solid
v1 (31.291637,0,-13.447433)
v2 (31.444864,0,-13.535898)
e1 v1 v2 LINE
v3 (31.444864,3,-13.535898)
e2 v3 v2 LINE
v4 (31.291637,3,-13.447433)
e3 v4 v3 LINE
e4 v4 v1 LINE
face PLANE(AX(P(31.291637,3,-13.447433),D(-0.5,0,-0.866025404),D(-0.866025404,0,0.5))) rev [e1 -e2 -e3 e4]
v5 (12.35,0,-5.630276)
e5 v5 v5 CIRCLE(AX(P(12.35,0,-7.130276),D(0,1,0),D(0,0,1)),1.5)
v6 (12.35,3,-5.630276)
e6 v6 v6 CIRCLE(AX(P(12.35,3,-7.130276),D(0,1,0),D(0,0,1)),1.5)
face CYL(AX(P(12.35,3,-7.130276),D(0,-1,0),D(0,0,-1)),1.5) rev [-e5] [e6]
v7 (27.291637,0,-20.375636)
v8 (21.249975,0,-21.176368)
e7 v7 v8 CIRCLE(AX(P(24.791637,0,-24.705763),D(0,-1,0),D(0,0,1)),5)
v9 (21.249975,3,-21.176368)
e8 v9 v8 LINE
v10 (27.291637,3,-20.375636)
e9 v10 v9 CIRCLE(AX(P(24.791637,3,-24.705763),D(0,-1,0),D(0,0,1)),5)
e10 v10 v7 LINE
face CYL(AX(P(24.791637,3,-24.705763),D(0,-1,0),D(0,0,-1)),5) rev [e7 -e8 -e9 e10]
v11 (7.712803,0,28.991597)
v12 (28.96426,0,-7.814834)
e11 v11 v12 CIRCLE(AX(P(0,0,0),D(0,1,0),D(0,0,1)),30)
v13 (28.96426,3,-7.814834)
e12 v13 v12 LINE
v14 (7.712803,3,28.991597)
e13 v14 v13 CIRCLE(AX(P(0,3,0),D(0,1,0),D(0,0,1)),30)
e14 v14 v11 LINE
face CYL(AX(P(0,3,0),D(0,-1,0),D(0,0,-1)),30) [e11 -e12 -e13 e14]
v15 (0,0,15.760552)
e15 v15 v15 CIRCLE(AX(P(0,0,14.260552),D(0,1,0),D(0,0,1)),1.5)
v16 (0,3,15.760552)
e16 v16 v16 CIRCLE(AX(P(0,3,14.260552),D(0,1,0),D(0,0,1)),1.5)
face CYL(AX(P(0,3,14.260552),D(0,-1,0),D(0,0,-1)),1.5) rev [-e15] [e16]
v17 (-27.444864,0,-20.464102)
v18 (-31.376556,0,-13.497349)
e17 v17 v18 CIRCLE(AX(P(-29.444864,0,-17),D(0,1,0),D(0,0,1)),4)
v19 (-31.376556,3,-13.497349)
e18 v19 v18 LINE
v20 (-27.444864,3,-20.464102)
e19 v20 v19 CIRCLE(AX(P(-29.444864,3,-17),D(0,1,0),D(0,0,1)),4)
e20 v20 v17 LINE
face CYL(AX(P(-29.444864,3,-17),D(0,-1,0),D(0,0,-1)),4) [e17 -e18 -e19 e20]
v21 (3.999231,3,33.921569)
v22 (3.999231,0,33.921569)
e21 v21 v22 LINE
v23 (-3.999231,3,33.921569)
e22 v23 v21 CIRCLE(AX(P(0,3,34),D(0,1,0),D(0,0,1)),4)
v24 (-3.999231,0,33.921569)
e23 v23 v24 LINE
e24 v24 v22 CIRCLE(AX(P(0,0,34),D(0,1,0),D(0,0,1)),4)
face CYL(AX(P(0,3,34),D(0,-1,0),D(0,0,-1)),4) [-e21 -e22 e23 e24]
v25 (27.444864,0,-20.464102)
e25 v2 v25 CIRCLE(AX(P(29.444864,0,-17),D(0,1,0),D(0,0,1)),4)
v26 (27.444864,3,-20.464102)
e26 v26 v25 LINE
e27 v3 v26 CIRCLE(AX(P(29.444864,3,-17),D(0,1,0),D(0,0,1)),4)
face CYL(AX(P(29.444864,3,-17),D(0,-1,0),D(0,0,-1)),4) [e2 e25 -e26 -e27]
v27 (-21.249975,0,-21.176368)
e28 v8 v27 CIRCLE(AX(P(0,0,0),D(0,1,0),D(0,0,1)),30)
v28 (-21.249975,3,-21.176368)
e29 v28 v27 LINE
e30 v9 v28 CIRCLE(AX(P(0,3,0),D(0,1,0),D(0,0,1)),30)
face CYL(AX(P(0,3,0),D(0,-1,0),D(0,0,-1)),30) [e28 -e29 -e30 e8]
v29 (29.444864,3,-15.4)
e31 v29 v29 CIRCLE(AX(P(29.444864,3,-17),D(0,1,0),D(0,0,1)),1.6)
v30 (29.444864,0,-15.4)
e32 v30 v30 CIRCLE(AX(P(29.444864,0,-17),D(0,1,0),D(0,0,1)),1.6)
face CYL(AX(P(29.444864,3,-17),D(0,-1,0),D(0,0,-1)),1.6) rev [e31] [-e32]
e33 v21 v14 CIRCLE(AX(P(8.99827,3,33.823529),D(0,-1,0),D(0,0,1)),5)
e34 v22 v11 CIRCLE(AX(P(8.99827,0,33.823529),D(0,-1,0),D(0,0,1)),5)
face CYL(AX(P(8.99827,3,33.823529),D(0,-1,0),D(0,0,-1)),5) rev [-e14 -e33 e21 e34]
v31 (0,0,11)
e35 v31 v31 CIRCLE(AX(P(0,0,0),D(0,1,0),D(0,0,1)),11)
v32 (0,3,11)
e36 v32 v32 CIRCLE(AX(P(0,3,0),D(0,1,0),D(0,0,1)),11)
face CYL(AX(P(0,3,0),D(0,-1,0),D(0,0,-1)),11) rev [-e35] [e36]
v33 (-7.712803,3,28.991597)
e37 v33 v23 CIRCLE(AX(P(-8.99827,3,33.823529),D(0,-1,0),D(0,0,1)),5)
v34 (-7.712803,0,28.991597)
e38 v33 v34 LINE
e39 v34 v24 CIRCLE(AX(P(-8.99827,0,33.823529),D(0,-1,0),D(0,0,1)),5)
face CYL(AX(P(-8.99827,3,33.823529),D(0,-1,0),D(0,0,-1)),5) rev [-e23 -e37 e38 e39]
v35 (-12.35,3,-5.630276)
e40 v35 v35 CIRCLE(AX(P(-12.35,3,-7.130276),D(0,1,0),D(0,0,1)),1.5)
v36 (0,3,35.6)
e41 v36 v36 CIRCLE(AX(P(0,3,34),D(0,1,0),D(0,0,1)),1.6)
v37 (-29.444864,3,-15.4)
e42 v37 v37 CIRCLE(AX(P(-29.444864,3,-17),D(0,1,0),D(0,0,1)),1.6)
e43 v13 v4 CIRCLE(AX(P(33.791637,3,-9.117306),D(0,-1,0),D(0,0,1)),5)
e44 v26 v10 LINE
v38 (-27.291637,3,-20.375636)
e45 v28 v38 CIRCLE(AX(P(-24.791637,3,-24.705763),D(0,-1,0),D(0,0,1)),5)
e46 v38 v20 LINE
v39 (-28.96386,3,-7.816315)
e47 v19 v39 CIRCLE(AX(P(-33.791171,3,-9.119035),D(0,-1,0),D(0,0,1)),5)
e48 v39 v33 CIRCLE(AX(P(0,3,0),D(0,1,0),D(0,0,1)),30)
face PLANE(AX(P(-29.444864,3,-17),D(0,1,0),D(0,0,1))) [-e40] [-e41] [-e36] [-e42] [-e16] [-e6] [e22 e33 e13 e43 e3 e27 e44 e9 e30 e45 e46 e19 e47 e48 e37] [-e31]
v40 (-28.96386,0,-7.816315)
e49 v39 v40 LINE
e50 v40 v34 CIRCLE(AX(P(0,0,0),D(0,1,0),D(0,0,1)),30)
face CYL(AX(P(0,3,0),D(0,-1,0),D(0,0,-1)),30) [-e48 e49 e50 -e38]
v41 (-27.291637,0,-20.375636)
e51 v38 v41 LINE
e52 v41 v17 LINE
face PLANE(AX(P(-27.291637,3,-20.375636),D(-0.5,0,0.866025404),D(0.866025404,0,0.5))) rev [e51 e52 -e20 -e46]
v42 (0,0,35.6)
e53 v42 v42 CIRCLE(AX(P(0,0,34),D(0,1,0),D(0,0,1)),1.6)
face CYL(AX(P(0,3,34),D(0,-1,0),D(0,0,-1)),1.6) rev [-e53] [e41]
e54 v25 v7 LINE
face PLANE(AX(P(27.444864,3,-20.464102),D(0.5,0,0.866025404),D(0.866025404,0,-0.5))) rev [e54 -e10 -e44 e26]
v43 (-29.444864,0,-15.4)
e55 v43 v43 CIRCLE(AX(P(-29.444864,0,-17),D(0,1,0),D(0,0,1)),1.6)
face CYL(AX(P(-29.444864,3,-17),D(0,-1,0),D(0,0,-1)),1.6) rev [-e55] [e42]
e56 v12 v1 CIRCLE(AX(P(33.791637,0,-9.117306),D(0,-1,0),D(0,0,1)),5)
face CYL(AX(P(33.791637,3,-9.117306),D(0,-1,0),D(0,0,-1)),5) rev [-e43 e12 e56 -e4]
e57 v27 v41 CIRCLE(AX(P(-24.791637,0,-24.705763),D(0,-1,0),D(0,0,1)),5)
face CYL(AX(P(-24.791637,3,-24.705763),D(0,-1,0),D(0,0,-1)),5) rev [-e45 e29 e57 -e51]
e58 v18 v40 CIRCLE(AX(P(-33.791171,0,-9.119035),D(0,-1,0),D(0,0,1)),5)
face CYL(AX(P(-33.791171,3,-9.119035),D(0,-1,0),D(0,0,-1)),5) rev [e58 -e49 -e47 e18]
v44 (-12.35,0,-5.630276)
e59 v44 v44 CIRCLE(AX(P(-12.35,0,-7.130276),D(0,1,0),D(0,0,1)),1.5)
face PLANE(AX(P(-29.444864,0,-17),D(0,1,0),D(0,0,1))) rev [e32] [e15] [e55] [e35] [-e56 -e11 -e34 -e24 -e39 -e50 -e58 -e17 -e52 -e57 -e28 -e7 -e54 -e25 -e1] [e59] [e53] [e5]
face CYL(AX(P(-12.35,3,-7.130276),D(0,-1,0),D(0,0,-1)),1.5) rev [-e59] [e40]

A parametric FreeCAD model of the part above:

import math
import FreeCAD as App
import Part
import Sketcher

V = App.Vector
Q = App.Units.Quantity

doc = App.newDocument("Part")
body = doc.addObject("PartDesign::Body", "Body")

# Sketch on XZ plane
sketch1 = body.newObject("Sketcher::SketchObject", "Sketch")
sketch1.AttachmentSupport = (doc.getObject("XZ_Plane"), [""])
sketch1.MapMode = "FlatFace"
sketch1.addGeometry(Part.LineSegment(V(31.291637, -13.447433, 0), V(31.444864, -13.535898, 0)), False)
sketch1.addGeometry(Part.ArcOfCircle(Part.Circle(V(29.444864, -17, 0), V(0, 0, 1), 4), math.radians(-120), math.radians(60)), False)
sketch1.addGeometry(Part.LineSegment(V(27.444864, -20.464102, 0), V(27.291637, -20.375636, 0)), False)
sketch1.addGeometry(Part.ArcOfCircle(Part.Circle(V(24.791637, -24.705763, 0), V(0, 0, 1), 5), math.radians(60), math.radians(135.099403)), False)
sketch1.addGeometry(Part.ArcOfCircle(Part.Circle(V(0, 0, 0), V(0, 0, 1), 30), math.radians(-135.099403), math.radians(-44.900597)), False)
sketch1.addGeometry(Part.ArcOfCircle(Part.Circle(V(-24.791637, -24.705763, 0), V(0, 0, 1), 5), math.radians(44.900597), math.radians(120)), False)
sketch1.addGeometry(Part.LineSegment(V(-27.291637, -20.375636, 0), V(-27.444864, -20.464102, 0)), False)
sketch1.addGeometry(Part.ArcOfCircle(Part.Circle(V(-29.444864, -17, 0), V(0, 0, 1), 4), math.radians(118.876481), math.radians(300)), False)
sketch1.addGeometry(Part.ArcOfCircle(Part.Circle(V(-33.791171, -9.119035, 0), V(0, 0, 1), 5), math.radians(-61.123519), math.radians(15.102334)), False)
sketch1.addGeometry(Part.ArcOfCircle(Part.Circle(V(0, 0, 0), V(0, 0, 1), 30), math.radians(104.897666), math.radians(195.102334)), False)
sketch1.addGeometry(Part.ArcOfCircle(Part.Circle(V(-8.99827, 33.823529, 0), V(0, 0, 1), 5), math.radians(-75.102334), math.radians(1.123519)), False)
sketch1.addGeometry(Part.ArcOfCircle(Part.Circle(V(0, 34, 0), V(0, 0, 1), 4), math.radians(-1.123519), math.radians(181.123519)), False)
sketch1.addGeometry(Part.ArcOfCircle(Part.Circle(V(8.99827, 33.823529, 0), V(0, 0, 1), 5), math.radians(178.876481), math.radians(255.102334)), False)
sketch1.addGeometry(Part.ArcOfCircle(Part.Circle(V(0, 0, 0), V(0, 0, 1), 30), math.radians(-15.099403), math.radians(75.102334)), False)
sketch1.addGeometry(Part.ArcOfCircle(Part.Circle(V(33.791637, -9.117306, 0), V(0, 0, 1), 5), math.radians(164.900597), math.radians(240)), False)
sketch1.addGeometry(Part.Circle(V(0, 34, 0), V(0, 0, 1), 1.6), False)
sketch1.addGeometry(Part.Circle(V(0, 14.260552, 0), V(0, 0, 1), 1.5), False)
sketch1.addGeometry(Part.Circle(V(0, 0, 0), V(0, 0, 1), 11), False)
sketch1.addGeometry(Part.Circle(V(-29.444864, -17, 0), V(0, 0, 1), 1.6), False)
sketch1.addGeometry(Part.Circle(V(-12.35, -7.130276, 0), V(0, 0, 1), 1.5), False)
sketch1.addGeometry(Part.Circle(V(12.35, -7.130276, 0), V(0, 0, 1), 1.5), False)
sketch1.addGeometry(Part.Circle(V(29.444864, -17, 0), V(0, 0, 1), 1.6), False)
sketch1.addConstraint(Sketcher.Constraint("Tangent", 0, 2, 1, 2))
sketch1.addConstraint(Sketcher.Constraint("Tangent", 1, 1, 2, 1))
sketch1.addConstraint(Sketcher.Constraint("Tangent", 2, 2, 3, 1))
sketch1.addConstraint(Sketcher.Constraint("Tangent", 3, 2, 4, 2))
sketch1.addConstraint(Sketcher.Constraint("Tangent", 4, 1, 5, 1))
sketch1.addConstraint(Sketcher.Constraint("Tangent", 5, 2, 6, 1))
sketch1.addConstraint(Sketcher.Constraint("Tangent", 6, 2, 7, 2))
sketch1.addConstraint(Sketcher.Constraint("Tangent", 7, 1, 8, 1))
sketch1.addConstraint(Sketcher.Constraint("Tangent", 8, 2, 9, 2))
sketch1.addConstraint(Sketcher.Constraint("Tangent", 9, 1, 10, 1))
sketch1.addConstraint(Sketcher.Constraint("Tangent", 10, 2, 11, 2))
sketch1.addConstraint(Sketcher.Constraint("Tangent", 11, 1, 12, 1))
sketch1.addConstraint(Sketcher.Constraint("Tangent", 12, 2, 13, 2))
sketch1.addConstraint(Sketcher.Constraint("Tangent", 13, 1, 14, 1))
sketch1.addConstraint(Sketcher.Constraint("Tangent", 14, 2, 0, 1))
sketch1.addConstraint(Sketcher.Constraint("Coincident", 4, 3, -1, 1))
sketch1.addConstraint(Sketcher.Constraint("Coincident", 9, 3, -1, 1))
sketch1.addConstraint(Sketcher.Constraint("Coincident", 13, 3, -1, 1))
sketch1.addConstraint(Sketcher.Constraint("Coincident", 17, 3, -1, 1))
sketch1.addConstraint(Sketcher.Constraint("Coincident", 15, 3, 11, 3))
sketch1.addConstraint(Sketcher.Constraint("Coincident", 18, 3, 7, 3))
sketch1.addConstraint(Sketcher.Constraint("Coincident", 21, 3, 1, 3))
sketch1.addConstraint(Sketcher.Constraint("Equal", 3, 5))
sketch1.addConstraint(Sketcher.Constraint("Equal", 1, 7))
sketch1.addConstraint(Sketcher.Constraint("Equal", 5, 8))
sketch1.addConstraint(Sketcher.Constraint("Equal", 4, 9))
sketch1.addConstraint(Sketcher.Constraint("Equal", 8, 10))
sketch1.addConstraint(Sketcher.Constraint("Equal", 7, 11))
sketch1.addConstraint(Sketcher.Constraint("Equal", 10, 12))
sketch1.addConstraint(Sketcher.Constraint("Equal", 9, 13))
sketch1.addConstraint(Sketcher.Constraint("Equal", 12, 14))
sketch1.addConstraint(Sketcher.Constraint("Equal", 15, 18))
sketch1.addConstraint(Sketcher.Constraint("Equal", 16, 19))
sketch1.addConstraint(Sketcher.Constraint("Equal", 19, 20))
sketch1.addConstraint(Sketcher.Constraint("Equal", 18, 21))
sketch1.addConstraint(Sketcher.Constraint("Symmetric", 1, 3, 7, 3, -2))
sketch1.addConstraint(Sketcher.Constraint("Symmetric", 19, 3, 20, 3, -2))
sketch1.addConstraint(Sketcher.Constraint("PointOnObject", 11, 3, -2))
sketch1.addConstraint(Sketcher.Constraint("PointOnObject", 16, 3, -2))
sketch1.addConstraint(Sketcher.Constraint("Parallel", 0, 2))
sketch1.addConstraint(Sketcher.Constraint("Horizontal", 3, 3, 5, 3))
sketch1.addConstraint(Sketcher.Constraint("Equal", 0, 2))
sketch1.addConstraint(Sketcher.Constraint("Diameter", 16, Q("3 mm")))
sketch1.addConstraint(Sketcher.Constraint("Diameter", 17, Q("22 mm")))
sketch1.addConstraint(Sketcher.Constraint("Radius", 1, Q("4 mm")))
sketch1.addConstraint(Sketcher.Constraint("Radius", 3, Q("5 mm")))
sketch1.addConstraint(Sketcher.Constraint("Radius", 4, Q("30 mm")))
sketch1.addConstraint(Sketcher.Constraint("Diameter", 15, Q("3.2 mm")))
sketch1.addConstraint(Sketcher.Constraint("DistanceY", 1, 3, -1, 1, Q("17 mm")))
sketch1.addConstraint(Sketcher.Constraint("DistanceY", -1, 1, 11, 3, Q("34 mm")))
sketch1.addConstraint(Sketcher.Constraint("DistanceX", 3, 3, 14, 3, Q("9 mm")))
sketch1.addConstraint(Sketcher.Constraint("DistanceX", 19, 3, -1, 1, Q("12.35 mm")))
sketch1.addConstraint(Sketcher.Constraint("DistanceY", -1, 1, 16, 3, Q("14.260552 mm")))
sketch1.addConstraint(Sketcher.Constraint("DistanceY", 19, 3, -1, 1, Q("7.130276 mm")))
pad1 = body.newObject("PartDesign::Pad", "Pad")
pad1.Profile = sketch1
pad1.Length = 3
pad1.Reversed = True

doc.recompute()
